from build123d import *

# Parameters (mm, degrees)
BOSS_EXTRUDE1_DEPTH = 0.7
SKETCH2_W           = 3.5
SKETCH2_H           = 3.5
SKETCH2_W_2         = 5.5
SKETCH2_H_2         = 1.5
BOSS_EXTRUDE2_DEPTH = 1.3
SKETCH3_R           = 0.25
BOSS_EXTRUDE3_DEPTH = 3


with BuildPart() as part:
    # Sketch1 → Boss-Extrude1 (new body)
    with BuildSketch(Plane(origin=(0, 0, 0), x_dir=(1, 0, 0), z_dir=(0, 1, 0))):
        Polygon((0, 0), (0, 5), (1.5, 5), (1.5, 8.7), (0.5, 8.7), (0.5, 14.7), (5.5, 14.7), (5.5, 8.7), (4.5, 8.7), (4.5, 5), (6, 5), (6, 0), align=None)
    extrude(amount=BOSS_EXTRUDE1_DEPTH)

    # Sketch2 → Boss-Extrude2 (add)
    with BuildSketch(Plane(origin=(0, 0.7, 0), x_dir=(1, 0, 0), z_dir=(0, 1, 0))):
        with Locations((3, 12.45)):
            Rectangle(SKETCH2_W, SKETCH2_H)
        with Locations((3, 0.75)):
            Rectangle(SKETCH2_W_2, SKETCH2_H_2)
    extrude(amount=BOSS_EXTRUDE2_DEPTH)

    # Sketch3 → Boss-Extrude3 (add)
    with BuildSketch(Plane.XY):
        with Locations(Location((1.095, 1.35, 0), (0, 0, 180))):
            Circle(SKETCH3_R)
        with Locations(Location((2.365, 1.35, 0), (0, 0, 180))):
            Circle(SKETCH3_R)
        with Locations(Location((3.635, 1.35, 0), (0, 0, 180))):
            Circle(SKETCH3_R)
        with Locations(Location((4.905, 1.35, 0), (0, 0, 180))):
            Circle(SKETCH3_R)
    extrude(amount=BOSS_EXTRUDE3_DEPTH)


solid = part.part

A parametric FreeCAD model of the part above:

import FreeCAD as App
import Part
import Sketcher
from FreeCAD import Vector
Q = App.Units.Quantity


def add_polygon(sketch, points):
    """Adds a closed chain of lines whose ends are joined by coincident constraints."""
    first, n = sketch.GeometryCount, len(points)
    for a, b in zip(points, points[1:] + points[:1]):
        sketch.addGeometry(Part.LineSegment(App.Vector(*a, 0), App.Vector(*b, 0)), False)
    for i in range(n):
        sketch.addConstraint(Sketcher.Constraint("Coincident", first + i, 2, first + (i + 1) % n, 1))

doc = App.newDocument("Part")
body = doc.addObject("PartDesign::Body", "Body")

sketch1 = doc.addObject("Sketcher::SketchObject", "Sketch")
body.addObject(sketch1)
sketch1.AttachmentSupport = (doc.XZ_Plane, [""])
sketch1.MapMode = "FlatFace"
add_polygon(sketch1, [(0, -5), (0, 0), (6, 0), (6, -5), (4.5, -5), (4.5, -8.7), (5.5, -8.7), (5.5, -14.7), (0.5, -14.7), (0.5, -8.7), (1.5, -8.7), (1.5, -5)])
sketch1.addConstraint(Sketcher.Constraint("Vertical", 0))
sketch1.addConstraint(Sketcher.Constraint("Horizontal", 1))
sketch1.addConstraint(Sketcher.Constraint("Vertical", 2))
sketch1.addConstraint(Sketcher.Constraint("Horizontal", 3))
sketch1.addConstraint(Sketcher.Constraint("Vertical", 4))
sketch1.addConstraint(Sketcher.Constraint("Horizontal", 5))
sketch1.addConstraint(Sketcher.Constraint("Vertical", 6))
sketch1.addConstraint(Sketcher.Constraint("Horizontal", 7))
sketch1.addConstraint(Sketcher.Constraint("Vertical", 8))
sketch1.addConstraint(Sketcher.Constraint("Horizontal", 9))
sketch1.addConstraint(Sketcher.Constraint("Vertical", 10))
sketch1.addConstraint(Sketcher.Constraint("Horizontal", 11))
sketch1.addConstraint(Sketcher.Constraint("Coincident", 0, 2, -1, 1))
sketch1.addConstraint(Sketcher.Constraint("Horizontal", 5, 2, 8, 2))
sketch1.addConstraint(Sketcher.Constraint("Horizontal", 3, 2, 10, 2))
sketch1.addConstraint(Sketcher.Constraint("Equal", 5, 9))
sketch1.addConstraint(Sketcher.Constraint("Equal", 3, 11))
sketch1.addConstraint(Sketcher.Constraint("Equal", 7, 0))
sketch1.addConstraint(Sketcher.Constraint("Equal", 1, 6))
sketch1.addConstraint(Sketcher.Constraint("DistanceX", 1, 1, 1, 2, Q("6 mm")))
sketch1.addConstraint(Sketcher.Constraint("DistanceX", 5, 1, 5, 2, Q("1 mm")))
sketch1.addConstraint(Sketcher.Constraint("DistanceX", 7, 2, 7, 1, Q("5 mm")))
sketch1.addConstraint(Sketcher.Constraint("DistanceY", 4, 2, 4, 1, Q("3.7 mm")))
pad1 = doc.addObject("PartDesign::Pad", "Pad")
body.addObject(pad1)
pad1.Profile = sketch1
pad1.Length = 0.7
pad1.Reversed = True

sketch2 = doc.addObject("Sketcher::SketchObject", "Sketch001")
body.addObject(sketch2)
sketch2.AttachmentSupport = (doc.XZ_Plane, [""])
sketch2.MapMode = "FlatFace"
sketch2.AttachmentOffset = App.Placement(Vector(0, 0, -0.7), App.Rotation())
add_polygon(sketch2, [(1.2, -14.2), (1.2, -10.7), (4.8, -10.7), (4.8, -14.2)])
add_polygon(sketch2, [(0.2, -1.5), (0.2, 0), (5.8, 0), (5.8, -1.5)])
sketch2.addConstraint(Sketcher.Constraint("Vertical", 0))
sketch2.addConstraint(Sketcher.Constraint("Horizontal", 1))
sketch2.addConstraint(Sketcher.Constraint("Vertical", 2))
sketch2.addConstraint(Sketcher.Constraint("Horizontal", 3))
sketch2.addConstraint(Sketcher.Constraint("Vertical", 4))
sketch2.addConstraint(Sketcher.Constraint("Horizontal", 5))
sketch2.addConstraint(Sketcher.Constraint("Vertical", 6))
sketch2.addConstraint(Sketcher.Constraint("Horizontal", 7))
sketch2.addConstraint(Sketcher.Constraint("PointOnObject", 4, 2, -1))
sketch2.addConstraint(Sketcher.Constraint("Equal", 3, 0))
sketch2.addConstraint(Sketcher.Constraint("DistanceX", 1, 1, 1, 2, Q("3.5 mm")))
sketch2.addConstraint(Sketcher.Constraint("DistanceX", 5, 1, 5, 2, Q("5.5 mm")))
sketch2.addConstraint(Sketcher.Constraint("DistanceY", 4, 1, 4, 2, Q("1.5 mm")))
sketch2.addConstraint(Sketcher.Constraint("DistanceX", 4, 2, 0, 2, Q("1 mm")))
sketch2.addConstraint(Sketcher.Constraint("DistanceY", 0, 2, -1, 1, Q("10.7 mm")))
sketch2.addConstraint(Sketcher.Constraint("DistanceX", -1, 1, 0, 2, Q("1.25 mm")))
pad2 = doc.addObject("PartDesign::Pad", "Pad001")
body.addObject(pad2)
pad2.Profile = sketch2
pad2.Length = 1.3
pad2.Reversed = True

sketch3 = doc.addObject("Sketcher::SketchObject", "Sketch002")
body.addObject(sketch3)
sketch3.AttachmentSupport = (doc.XY_Plane, [""])
sketch3.MapMode = "FlatFace"
sketch3.addGeometry(Part.Circle(Vector(1.09, 1.35, 0), Vector(0, 0, 1), 0.25), False)
sketch3.addGeometry(Part.Circle(Vector(2.37, 1.35, 0), Vector(0, 0, 1), 0.25), False)
sketch3.addGeometry(Part.Circle(Vector(3.63, 1.35, 0), Vector(0, 0, 1), 0.25), False)
sketch3.addGeometry(Part.Circle(Vector(4.91, 1.35, 0), Vector(0, 0, 1), 0.25), False)
sketch3.addConstraint(Sketcher.Constraint("Equal", 0, 1))
sketch3.addConstraint(Sketcher.Constraint("Equal", 1, 2))
sketch3.addConstraint(Sketcher.Constraint("Equal", 2, 3))
sketch3.addConstraint(Sketcher.Constraint("Horizontal", 0, 3, 1, 3))
sketch3.addConstraint(Sketcher.Constraint("Horizontal", 1, 3, 2, 3))
sketch3.addConstraint(Sketcher.Constraint("Horizontal", 2, 3, 3, 3))
sketch3.addConstraint(Sketcher.Constraint("Diameter", 0, Q("0.5 mm")))
sketch3.addConstraint(Sketcher.Constraint("DistanceY", -1, 1, 0, 3, Q("1.35 mm")))
sketch3.addConstraint(Sketcher.Constraint("DistanceX", 0, 3, 1, 3, Q("1.27 mm")))
sketch3.addConstraint(Sketcher.Constraint("DistanceX", 1, 3, 2, 3, Q("1.27 mm")))
sketch3.addConstraint(Sketcher.Constraint("DistanceX", 2, 3, 3, 3, Q("1.27 mm")))
sketch3.addConstraint(Sketcher.Constraint("DistanceX", -1, 1, 0, 3, Q("1.095 mm")))
pad3 = doc.addObject("PartDesign::Pad", "Pad002")
body.addObject(pad3)
pad3.Profile = sketch3
pad3.Length = 3

doc.recompute()
